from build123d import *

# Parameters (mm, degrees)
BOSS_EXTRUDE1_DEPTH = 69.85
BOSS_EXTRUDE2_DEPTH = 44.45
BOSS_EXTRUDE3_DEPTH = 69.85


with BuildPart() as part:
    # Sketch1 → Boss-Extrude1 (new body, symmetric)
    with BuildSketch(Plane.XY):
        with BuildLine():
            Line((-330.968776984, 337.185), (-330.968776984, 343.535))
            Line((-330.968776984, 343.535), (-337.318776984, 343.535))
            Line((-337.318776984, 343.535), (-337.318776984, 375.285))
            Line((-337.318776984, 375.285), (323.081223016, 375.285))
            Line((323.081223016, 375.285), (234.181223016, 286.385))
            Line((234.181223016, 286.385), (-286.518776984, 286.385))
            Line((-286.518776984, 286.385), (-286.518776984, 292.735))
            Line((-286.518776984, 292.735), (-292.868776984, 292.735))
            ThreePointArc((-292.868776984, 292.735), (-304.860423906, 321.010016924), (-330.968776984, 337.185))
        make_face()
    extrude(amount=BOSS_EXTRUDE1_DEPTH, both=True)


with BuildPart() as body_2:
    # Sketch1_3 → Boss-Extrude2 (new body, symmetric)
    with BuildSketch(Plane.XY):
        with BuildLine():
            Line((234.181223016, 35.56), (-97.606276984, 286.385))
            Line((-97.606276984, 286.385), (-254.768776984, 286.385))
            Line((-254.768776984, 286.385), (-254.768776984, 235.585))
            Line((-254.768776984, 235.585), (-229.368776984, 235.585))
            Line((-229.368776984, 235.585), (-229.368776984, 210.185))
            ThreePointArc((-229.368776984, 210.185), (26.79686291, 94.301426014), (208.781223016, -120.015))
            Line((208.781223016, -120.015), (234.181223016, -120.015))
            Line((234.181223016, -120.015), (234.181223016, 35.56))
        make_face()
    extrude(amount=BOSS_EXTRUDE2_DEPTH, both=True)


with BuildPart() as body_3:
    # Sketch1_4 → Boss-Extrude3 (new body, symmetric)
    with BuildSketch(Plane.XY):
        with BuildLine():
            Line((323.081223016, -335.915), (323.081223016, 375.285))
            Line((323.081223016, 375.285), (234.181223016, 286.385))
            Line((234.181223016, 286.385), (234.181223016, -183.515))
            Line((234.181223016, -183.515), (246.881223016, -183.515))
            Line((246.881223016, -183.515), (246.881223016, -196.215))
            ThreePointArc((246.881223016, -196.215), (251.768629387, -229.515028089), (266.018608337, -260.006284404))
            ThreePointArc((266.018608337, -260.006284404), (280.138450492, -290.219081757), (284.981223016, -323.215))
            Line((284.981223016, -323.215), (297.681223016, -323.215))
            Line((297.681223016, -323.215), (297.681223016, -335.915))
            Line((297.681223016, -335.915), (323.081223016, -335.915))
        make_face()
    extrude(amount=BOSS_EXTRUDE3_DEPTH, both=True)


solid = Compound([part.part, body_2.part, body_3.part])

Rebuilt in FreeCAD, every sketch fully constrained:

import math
import FreeCAD as App
import Part
import Sketcher

V = App.Vector
Q = App.Units.Quantity

doc = App.newDocument("Part")
body = doc.addObject("PartDesign::Body", "Body")

# Sketch on XY plane
sketch1 = body.newObject("Sketcher::SketchObject", "Sketch")
sketch1.AttachmentSupport = (doc.getObject("XY_Plane"), [""])
sketch1.MapMode = "FlatFace"
sketch1.addGeometry(Part.LineSegment(V(-331, 344, 0), V(-331, 337, 0)), False)
sketch1.addGeometry(Part.ArcOfCircle(Part.Circle(V(-343, 288, 0), V(0, 0, 1), 51), math.radians(5), math.radians(76)), False)
sketch1.addGeometry(Part.LineSegment(V(-293, 293, 0), V(-287, 293, 0)), False)
sketch1.addGeometry(Part.LineSegment(V(-287, 293, 0), V(-287, 286, 0)), False)
sketch1.addGeometry(Part.LineSegment(V(-287, 286, 0), V(234, 286, 0)), False)
sketch1.addGeometry(Part.LineSegment(V(234, 286, 0), V(323, 375, 0)), False)
sketch1.addGeometry(Part.LineSegment(V(323, 375, 0), V(-337, 375, 0)), False)
sketch1.addGeometry(Part.LineSegment(V(-337, 375, 0), V(-337, 344, 0)), False)
sketch1.addGeometry(Part.LineSegment(V(-337, 344, 0), V(-331, 344, 0)), False)
sketch1.addConstraint(Sketcher.Constraint("Coincident", 0, 2, 1, 2))
sketch1.addConstraint(Sketcher.Constraint("Coincident", 1, 1, 2, 1))
sketch1.addConstraint(Sketcher.Constraint("Coincident", 2, 2, 3, 1))
sketch1.addConstraint(Sketcher.Constraint("Coincident", 3, 2, 4, 1))
sketch1.addConstraint(Sketcher.Constraint("Coincident", 4, 2, 5, 1))
sketch1.addConstraint(Sketcher.Constraint("Coincident", 5, 2, 6, 1))
sketch1.addConstraint(Sketcher.Constraint("Coincident", 6, 2, 7, 1))
sketch1.addConstraint(Sketcher.Constraint("Coincident", 7, 2, 8, 1))
sketch1.addConstraint(Sketcher.Constraint("Coincident", 8, 2, 0, 1))
sketch1.addConstraint(Sketcher.Constraint("Vertical", 0))
sketch1.addConstraint(Sketcher.Constraint("Horizontal", 2))
sketch1.addConstraint(Sketcher.Constraint("Vertical", 3))
sketch1.addConstraint(Sketcher.Constraint("Horizontal", 4))
sketch1.addConstraint(Sketcher.Constraint("Horizontal", 6))
sketch1.addConstraint(Sketcher.Constraint("Vertical", 7))
sketch1.addConstraint(Sketcher.Constraint("Horizontal", 8))
sketch1.addConstraint(Sketcher.Constraint("Equal", 2, 8))
sketch1.addConstraint(Sketcher.Constraint("Equal", 8, 0))
sketch1.addConstraint(Sketcher.Constraint("Equal", 0, 3))
sketch1.addConstraint(Sketcher.Constraint("DistanceX", 6, 2, 6, 1, Q("26 in")))
sketch1.addConstraint(Sketcher.Constraint("DistanceX", 4, 1, 4, 2, Q("20.5 in")))
sketch1.addConstraint(Sketcher.Constraint("Angle", 5, Q("45 deg")))
sketch1.addConstraint(Sketcher.Constraint("DistanceY", 3, 2, 0, 2, Q("2 in")))
sketch1.addConstraint(Sketcher.Constraint("DistanceX", 2, 2, 5, 2, Q("24 in")))
sketch1.addConstraint(Sketcher.Constraint("DistanceX", 2, 1, 2, 2, Q("0.25 in")))
sketch1.addConstraint(Sketcher.Constraint("DistanceY", -1, 1, 0, 2, Q("13.275 in")))
sketch1.addConstraint(Sketcher.Constraint("Radius", 1, Q("50.733412 mm")))
sketch1.addConstraint(Sketcher.Constraint("DistanceX", 1, 3, -1, 1, Q("343.380102 mm")))
pad1 = body.newObject("PartDesign::Pad", "Pad")
pad1.Profile = sketch1
pad1.Length = Q("5.5 in")
pad1.Midplane = True
body2 = doc.addObject("PartDesign::Body", "Body001")

# Sketch on XY plane
sketch2 = body2.newObject("Sketcher::SketchObject", "Sketch001")
sketch2.AttachmentSupport = (doc.getObject("XY_Plane001"), [""])
sketch2.MapMode = "FlatFace"
sketch2.addGeometry(Part.LineSegment(V(234, 36, 0), V(-98, 286, 0)), False)
sketch2.addGeometry(Part.LineSegment(V(-98, 286, 0), V(-255, 286, 0)), False)
sketch2.addGeometry(Part.LineSegment(V(-255, 286, 0), V(-255, 236, 0)), False)
sketch2.addGeometry(Part.LineSegment(V(-255, 236, 0), V(-229, 236, 0)), False)
sketch2.addGeometry(Part.LineSegment(V(-229, 236, 0), V(-229, 210, 0)), False)
sketch2.addGeometry(Part.ArcOfCircle(Part.Circle(V(-359, -418, 0), V(0, 0, 1), 641), math.radians(28), math.radians(78)), False)
sketch2.addGeometry(Part.LineSegment(V(209, -120, 0), V(234, -120, 0)), False)
sketch2.addGeometry(Part.LineSegment(V(234, -120, 0), V(234, 36, 0)), False)
sketch2.addConstraint(Sketcher.Constraint("Coincident", 0, 2, 1, 1))
sketch2.addConstraint(Sketcher.Constraint("Coincident", 1, 2, 2, 1))
sketch2.addConstraint(Sketcher.Constraint("Coincident", 2, 2, 3, 1))
sketch2.addConstraint(Sketcher.Constraint("Coincident", 3, 2, 4, 1))
sketch2.addConstraint(Sketcher.Constraint("Coincident", 4, 2, 5, 2))
sketch2.addConstraint(Sketcher.Constraint("Coincident", 5, 1, 6, 1))
sketch2.addConstraint(Sketcher.Constraint("Coincident", 6, 2, 7, 1))
sketch2.addConstraint(Sketcher.Constraint("Coincident", 7, 2, 0, 1))
sketch2.addConstraint(Sketcher.Constraint("Horizontal", 1))
sketch2.addConstraint(Sketcher.Constraint("Vertical", 2))
sketch2.addConstraint(Sketcher.Constraint("Horizontal", 3))
sketch2.addConstraint(Sketcher.Constraint("Vertical", 4))
sketch2.addConstraint(Sketcher.Constraint("Horizontal", 6))
sketch2.addConstraint(Sketcher.Constraint("Vertical", 7))
sketch2.addConstraint(Sketcher.Constraint("Equal", 3, 6))
sketch2.addConstraint(Sketcher.Constraint("Equal", 6, 4))
sketch2.addConstraint(Sketcher.Constraint("DistanceX", 3, 1, 3, 2, Q("1 in")))
sketch2.addConstraint(Sketcher.Constraint("DistanceY", 2, 2, 2, 1, Q("2 in")))
sketch2.addConstraint(Sketcher.Constraint("Radius", 5, Q("25.25 in")))
sketch2.addConstraint(Sketcher.Constraint("DistanceY", 6, 2, 0, 2, Q("16 in")))
sketch2.addConstraint(Sketcher.Constraint("DistanceY", -1, 1, 7, 2, Q("1.4 in")))
sketch2.addConstraint(Sketcher.Constraint("DistanceX", 1, 2, 1, 1, Q("6.1875 in")))
sketch2.addConstraint(Sketcher.Constraint("DistanceY", 7, 1, 7, 2, Q("6.125 in")))
sketch2.addConstraint(Sketcher.Constraint("DistanceX", 4, 2, 6, 2, Q("18.25 in")))
sketch2.addConstraint(Sketcher.Constraint("DistanceX", 5, 3, -1, 1, Q("359.199788 mm")))
pad2 = body2.newObject("PartDesign::Pad", "Pad001")
pad2.Profile = sketch2
pad2.Length = Q("3.5 in")
pad2.Midplane = True
body3 = doc.addObject("PartDesign::Body", "Body002")

# Sketch on XY plane
sketch3 = body3.newObject("Sketcher::SketchObject", "Sketch002")
sketch3.AttachmentSupport = (doc.getObject("XY_Plane002"), [""])
sketch3.MapMode = "FlatFace"
sketch3.addGeometry(Part.LineSegment(V(323, -336, 0), V(323, 375, 0)), False)
sketch3.addGeometry(Part.LineSegment(V(323, 375, 0), V(234, 286, 0)), False)
sketch3.addGeometry(Part.LineSegment(V(234, 286, 0), V(234, -184, 0)), False)
sketch3.addGeometry(Part.LineSegment(V(234, -184, 0), V(247, -184, 0)), False)
sketch3.addGeometry(Part.LineSegment(V(247, -184, 0), V(247, -196, 0)), False)
sketch3.addGeometry(Part.ArcOfCircle(Part.Circle(V(363, -196, 0), V(0, 0, 1), 116), math.radians(180), math.radians(213)), False)
sketch3.addGeometry(Part.ArcOfCircle(Part.Circle(V(170, -323, 0), V(0, 0, 1), 115), math.radians(0), math.radians(33)), False)
sketch3.addGeometry(Part.LineSegment(V(285, -323, 0), V(298, -323, 0)), False)
sketch3.addGeometry(Part.LineSegment(V(298, -323, 0), V(298, -336, 0)), False)
sketch3.addGeometry(Part.LineSegment(V(298, -336, 0), V(323, -336, 0)), False)
sketch3.addConstraint(Sketcher.Constraint("Coincident", 0, 2, 1, 1))
sketch3.addConstraint(Sketcher.Constraint("Coincident", 1, 2, 2, 1))
sketch3.addConstraint(Sketcher.Constraint("Coincident", 2, 2, 3, 1))
sketch3.addConstraint(Sketcher.Constraint("Coincident", 3, 2, 4, 1))
sketch3.addConstraint(Sketcher.Constraint("Tangent", 4, 2, 5, 1))
sketch3.addConstraint(Sketcher.Constraint("Tangent", 5, 2, 6, 2))
sketch3.addConstraint(Sketcher.Constraint("Coincident", 6, 1, 7, 1))
sketch3.addConstraint(Sketcher.Constraint("Coincident", 7, 2, 8, 1))
sketch3.addConstraint(Sketcher.Constraint("Coincident", 8, 2, 9, 1))
sketch3.addConstraint(Sketcher.Constraint("Coincident", 9, 2, 0, 1))
sketch3.addConstraint(Sketcher.Constraint("Vertical", 0))
sketch3.addConstraint(Sketcher.Constraint("Vertical", 2))
sketch3.addConstraint(Sketcher.Constraint("Horizontal", 3))
sketch3.addConstraint(Sketcher.Constraint("Vertical", 4))
sketch3.addConstraint(Sketcher.Constraint("Horizontal", 7))
sketch3.addConstraint(Sketcher.Constraint("Vertical", 8))
sketch3.addConstraint(Sketcher.Constraint("Horizontal", 9))
sketch3.addConstraint(Sketcher.Constraint("Equal", 3, 7))
sketch3.addConstraint(Sketcher.Constraint("Equal", 7, 4))
sketch3.addConstraint(Sketcher.Constraint("Equal", 4, 8))
sketch3.addConstraint(Sketcher.Constraint("DistanceX", 9, 1, 9, 2, Q("1 in")))
sketch3.addConstraint(Sketcher.Constraint("DistanceY", 0, 1, 0, 2, Q("28 in")))
sketch3.addConstraint(Sketcher.Constraint("DistanceX", 3, 1, 3, 2, Q("0.5 in")))
sketch3.addConstraint(Sketcher.Constraint("DistanceY", 2, 2, 2, 1, Q("18.5 in")))
sketch3.addConstraint(Sketcher.Constraint("Angle", 1, Q("-135 deg")))
sketch3.addConstraint(Sketcher.Constraint("Radius", 5, Q("4.5625 in")))
sketch3.addConstraint(Sketcher.Constraint("DistanceY", 6, 3, 5, 3, Q("5 in")))
sketch3.addConstraint(Sketcher.Constraint("DistanceY", 2, 2, 0, 2, Q("22 in")))
sketch3.addConstraint(Sketcher.Constraint("DistanceY", 5, 3, -1, 1, Q("7.725 in")))
sketch3.addConstraint(Sketcher.Constraint("DistanceX", -1, 1, 6, 3, Q("6.6988999 in")))
pad3 = body3.newObject("PartDesign::Pad", "Pad002")
pad3.Profile = sketch3
pad3.Length = Q("5.5 in")
pad3.Midplane = True

doc.recompute()
